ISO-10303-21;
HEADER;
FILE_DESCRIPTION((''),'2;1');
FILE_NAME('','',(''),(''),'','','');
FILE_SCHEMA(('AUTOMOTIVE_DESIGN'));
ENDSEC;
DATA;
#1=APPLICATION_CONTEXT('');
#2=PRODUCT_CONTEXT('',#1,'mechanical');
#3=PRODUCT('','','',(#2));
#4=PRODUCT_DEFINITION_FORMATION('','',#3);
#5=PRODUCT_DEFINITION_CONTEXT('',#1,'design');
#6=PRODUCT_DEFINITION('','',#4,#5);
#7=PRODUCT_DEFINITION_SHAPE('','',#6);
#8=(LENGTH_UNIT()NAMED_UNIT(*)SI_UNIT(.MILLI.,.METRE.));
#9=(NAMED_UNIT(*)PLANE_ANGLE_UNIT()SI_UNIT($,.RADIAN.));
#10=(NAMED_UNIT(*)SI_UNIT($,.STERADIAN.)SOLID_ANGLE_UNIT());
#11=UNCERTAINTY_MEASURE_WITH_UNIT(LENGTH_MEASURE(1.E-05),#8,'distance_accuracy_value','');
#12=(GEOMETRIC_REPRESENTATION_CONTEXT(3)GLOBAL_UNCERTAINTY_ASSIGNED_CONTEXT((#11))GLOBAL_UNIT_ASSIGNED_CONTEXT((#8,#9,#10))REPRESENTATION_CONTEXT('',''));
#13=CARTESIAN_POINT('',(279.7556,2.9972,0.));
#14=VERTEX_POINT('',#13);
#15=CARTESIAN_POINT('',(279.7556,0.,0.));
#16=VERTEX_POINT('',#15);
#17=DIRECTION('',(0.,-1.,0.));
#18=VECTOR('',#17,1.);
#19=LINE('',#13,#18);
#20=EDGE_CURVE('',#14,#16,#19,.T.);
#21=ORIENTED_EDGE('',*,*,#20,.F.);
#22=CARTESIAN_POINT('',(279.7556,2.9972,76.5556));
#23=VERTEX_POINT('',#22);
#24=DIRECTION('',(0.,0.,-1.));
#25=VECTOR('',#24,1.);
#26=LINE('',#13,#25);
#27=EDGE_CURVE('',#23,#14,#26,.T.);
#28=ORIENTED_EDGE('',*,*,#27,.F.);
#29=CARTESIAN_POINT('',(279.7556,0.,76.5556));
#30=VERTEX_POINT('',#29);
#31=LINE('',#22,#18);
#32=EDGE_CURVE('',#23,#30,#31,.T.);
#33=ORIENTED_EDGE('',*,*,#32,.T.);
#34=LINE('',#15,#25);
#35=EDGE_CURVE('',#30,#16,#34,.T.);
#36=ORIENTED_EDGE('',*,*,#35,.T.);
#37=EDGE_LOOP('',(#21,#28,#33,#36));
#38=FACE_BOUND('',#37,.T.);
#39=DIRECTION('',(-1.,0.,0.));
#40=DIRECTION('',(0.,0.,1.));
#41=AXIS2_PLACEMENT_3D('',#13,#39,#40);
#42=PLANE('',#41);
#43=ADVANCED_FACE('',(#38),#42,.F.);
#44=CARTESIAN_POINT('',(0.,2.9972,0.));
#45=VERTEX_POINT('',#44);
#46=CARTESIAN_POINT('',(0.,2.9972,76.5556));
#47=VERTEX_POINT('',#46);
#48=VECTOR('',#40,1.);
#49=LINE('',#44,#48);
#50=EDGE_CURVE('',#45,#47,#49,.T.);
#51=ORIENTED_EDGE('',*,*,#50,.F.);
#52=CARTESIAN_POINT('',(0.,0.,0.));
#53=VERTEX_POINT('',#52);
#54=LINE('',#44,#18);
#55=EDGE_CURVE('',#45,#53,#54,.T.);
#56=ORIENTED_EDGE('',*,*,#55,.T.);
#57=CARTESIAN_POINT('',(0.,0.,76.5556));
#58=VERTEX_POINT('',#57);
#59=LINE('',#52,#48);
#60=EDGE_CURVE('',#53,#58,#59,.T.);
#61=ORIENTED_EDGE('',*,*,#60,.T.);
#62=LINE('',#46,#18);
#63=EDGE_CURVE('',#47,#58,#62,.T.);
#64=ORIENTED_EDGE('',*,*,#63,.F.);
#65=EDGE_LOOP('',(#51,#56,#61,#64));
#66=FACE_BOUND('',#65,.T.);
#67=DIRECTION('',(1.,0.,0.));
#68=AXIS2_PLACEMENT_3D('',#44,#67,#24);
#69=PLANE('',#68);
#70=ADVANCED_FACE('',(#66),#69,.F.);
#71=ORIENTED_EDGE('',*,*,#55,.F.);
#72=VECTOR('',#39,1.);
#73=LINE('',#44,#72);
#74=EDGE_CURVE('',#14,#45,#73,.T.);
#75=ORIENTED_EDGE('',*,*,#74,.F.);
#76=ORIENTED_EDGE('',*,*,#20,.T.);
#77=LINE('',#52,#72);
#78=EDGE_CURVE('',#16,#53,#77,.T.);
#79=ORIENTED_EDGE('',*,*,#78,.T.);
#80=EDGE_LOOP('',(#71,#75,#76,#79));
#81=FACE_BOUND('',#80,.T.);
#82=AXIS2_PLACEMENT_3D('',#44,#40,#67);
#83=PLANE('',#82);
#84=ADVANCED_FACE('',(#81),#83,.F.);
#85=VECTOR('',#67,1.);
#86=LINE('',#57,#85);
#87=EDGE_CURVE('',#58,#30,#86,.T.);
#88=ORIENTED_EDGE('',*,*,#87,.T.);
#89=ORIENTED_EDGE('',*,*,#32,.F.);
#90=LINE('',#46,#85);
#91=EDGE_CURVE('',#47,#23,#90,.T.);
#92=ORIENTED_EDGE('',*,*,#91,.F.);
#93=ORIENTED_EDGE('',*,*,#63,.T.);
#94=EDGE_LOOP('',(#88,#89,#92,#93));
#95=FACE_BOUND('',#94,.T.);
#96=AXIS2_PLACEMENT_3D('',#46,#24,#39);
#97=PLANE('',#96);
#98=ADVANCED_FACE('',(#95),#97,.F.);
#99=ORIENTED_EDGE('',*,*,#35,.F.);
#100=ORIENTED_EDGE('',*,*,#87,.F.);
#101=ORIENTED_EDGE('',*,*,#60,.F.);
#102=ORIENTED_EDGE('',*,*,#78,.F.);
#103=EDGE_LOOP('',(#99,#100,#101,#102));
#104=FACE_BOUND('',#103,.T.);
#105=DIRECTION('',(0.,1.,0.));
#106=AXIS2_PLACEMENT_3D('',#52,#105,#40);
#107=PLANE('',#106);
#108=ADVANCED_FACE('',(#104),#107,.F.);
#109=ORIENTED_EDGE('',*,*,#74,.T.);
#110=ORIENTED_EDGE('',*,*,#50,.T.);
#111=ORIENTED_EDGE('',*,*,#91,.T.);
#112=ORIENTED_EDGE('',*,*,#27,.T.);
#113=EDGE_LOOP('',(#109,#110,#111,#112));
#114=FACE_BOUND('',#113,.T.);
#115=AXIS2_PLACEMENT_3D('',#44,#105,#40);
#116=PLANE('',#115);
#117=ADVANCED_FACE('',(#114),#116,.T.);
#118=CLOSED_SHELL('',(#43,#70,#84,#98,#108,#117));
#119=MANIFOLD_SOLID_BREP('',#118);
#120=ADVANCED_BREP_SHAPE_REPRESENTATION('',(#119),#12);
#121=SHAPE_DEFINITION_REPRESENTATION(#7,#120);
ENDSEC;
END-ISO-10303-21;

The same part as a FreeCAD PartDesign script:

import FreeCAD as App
import Part
import Sketcher
Q = App.Units.Quantity

doc = App.newDocument("Part")
body = doc.addObject("PartDesign::Body", "Body")

# Sketch on XZ plane
sketch1 = body.newObject("Sketcher::SketchObject", "Sketch")
sketch1.AttachmentSupport = (doc.getObject("XZ_Plane"), [""])
sketch1.MapMode = "FlatFace"
sketch1.addGeometry([
    Part.LineSegment(App.Vector(0, 0, 0), App.Vector(0, 77, 0)),
    Part.LineSegment(App.Vector(0, 77, 0), App.Vector(280, 77, 0)),
    Part.LineSegment(App.Vector(280, 77, 0), App.Vector(280, 0, 0)),
    Part.LineSegment(App.Vector(280, 0, 0), App.Vector(0, 0, 0)),
], False)
sketch1.addConstraint([
    Sketcher.Constraint("Coincident", 0, 2, 1, 1),
    Sketcher.Constraint("Coincident", 1, 2, 2, 1),
    Sketcher.Constraint("Coincident", 2, 2, 3, 1),
    Sketcher.Constraint("Coincident", 3, 2, 0, 1),
    Sketcher.Constraint("Vertical", 0),
    Sketcher.Constraint("Horizontal", 1),
    Sketcher.Constraint("Vertical", 2),
    Sketcher.Constraint("Horizontal", 3),
    Sketcher.Constraint("Coincident", 3, 2, -1, 1),
    Sketcher.Constraint("DistanceX", 1, 1, 1, 2, Q("11.014 in")),
    Sketcher.Constraint("DistanceY", 0, 1, 0, 2, Q("3.014 in")),
])
pad1 = body.newObject("PartDesign::Pad", "Pad")
pad1.Profile = sketch1
pad1.Length = Q("0.118 in")
pad1.Reversed = True

doc.recompute()
